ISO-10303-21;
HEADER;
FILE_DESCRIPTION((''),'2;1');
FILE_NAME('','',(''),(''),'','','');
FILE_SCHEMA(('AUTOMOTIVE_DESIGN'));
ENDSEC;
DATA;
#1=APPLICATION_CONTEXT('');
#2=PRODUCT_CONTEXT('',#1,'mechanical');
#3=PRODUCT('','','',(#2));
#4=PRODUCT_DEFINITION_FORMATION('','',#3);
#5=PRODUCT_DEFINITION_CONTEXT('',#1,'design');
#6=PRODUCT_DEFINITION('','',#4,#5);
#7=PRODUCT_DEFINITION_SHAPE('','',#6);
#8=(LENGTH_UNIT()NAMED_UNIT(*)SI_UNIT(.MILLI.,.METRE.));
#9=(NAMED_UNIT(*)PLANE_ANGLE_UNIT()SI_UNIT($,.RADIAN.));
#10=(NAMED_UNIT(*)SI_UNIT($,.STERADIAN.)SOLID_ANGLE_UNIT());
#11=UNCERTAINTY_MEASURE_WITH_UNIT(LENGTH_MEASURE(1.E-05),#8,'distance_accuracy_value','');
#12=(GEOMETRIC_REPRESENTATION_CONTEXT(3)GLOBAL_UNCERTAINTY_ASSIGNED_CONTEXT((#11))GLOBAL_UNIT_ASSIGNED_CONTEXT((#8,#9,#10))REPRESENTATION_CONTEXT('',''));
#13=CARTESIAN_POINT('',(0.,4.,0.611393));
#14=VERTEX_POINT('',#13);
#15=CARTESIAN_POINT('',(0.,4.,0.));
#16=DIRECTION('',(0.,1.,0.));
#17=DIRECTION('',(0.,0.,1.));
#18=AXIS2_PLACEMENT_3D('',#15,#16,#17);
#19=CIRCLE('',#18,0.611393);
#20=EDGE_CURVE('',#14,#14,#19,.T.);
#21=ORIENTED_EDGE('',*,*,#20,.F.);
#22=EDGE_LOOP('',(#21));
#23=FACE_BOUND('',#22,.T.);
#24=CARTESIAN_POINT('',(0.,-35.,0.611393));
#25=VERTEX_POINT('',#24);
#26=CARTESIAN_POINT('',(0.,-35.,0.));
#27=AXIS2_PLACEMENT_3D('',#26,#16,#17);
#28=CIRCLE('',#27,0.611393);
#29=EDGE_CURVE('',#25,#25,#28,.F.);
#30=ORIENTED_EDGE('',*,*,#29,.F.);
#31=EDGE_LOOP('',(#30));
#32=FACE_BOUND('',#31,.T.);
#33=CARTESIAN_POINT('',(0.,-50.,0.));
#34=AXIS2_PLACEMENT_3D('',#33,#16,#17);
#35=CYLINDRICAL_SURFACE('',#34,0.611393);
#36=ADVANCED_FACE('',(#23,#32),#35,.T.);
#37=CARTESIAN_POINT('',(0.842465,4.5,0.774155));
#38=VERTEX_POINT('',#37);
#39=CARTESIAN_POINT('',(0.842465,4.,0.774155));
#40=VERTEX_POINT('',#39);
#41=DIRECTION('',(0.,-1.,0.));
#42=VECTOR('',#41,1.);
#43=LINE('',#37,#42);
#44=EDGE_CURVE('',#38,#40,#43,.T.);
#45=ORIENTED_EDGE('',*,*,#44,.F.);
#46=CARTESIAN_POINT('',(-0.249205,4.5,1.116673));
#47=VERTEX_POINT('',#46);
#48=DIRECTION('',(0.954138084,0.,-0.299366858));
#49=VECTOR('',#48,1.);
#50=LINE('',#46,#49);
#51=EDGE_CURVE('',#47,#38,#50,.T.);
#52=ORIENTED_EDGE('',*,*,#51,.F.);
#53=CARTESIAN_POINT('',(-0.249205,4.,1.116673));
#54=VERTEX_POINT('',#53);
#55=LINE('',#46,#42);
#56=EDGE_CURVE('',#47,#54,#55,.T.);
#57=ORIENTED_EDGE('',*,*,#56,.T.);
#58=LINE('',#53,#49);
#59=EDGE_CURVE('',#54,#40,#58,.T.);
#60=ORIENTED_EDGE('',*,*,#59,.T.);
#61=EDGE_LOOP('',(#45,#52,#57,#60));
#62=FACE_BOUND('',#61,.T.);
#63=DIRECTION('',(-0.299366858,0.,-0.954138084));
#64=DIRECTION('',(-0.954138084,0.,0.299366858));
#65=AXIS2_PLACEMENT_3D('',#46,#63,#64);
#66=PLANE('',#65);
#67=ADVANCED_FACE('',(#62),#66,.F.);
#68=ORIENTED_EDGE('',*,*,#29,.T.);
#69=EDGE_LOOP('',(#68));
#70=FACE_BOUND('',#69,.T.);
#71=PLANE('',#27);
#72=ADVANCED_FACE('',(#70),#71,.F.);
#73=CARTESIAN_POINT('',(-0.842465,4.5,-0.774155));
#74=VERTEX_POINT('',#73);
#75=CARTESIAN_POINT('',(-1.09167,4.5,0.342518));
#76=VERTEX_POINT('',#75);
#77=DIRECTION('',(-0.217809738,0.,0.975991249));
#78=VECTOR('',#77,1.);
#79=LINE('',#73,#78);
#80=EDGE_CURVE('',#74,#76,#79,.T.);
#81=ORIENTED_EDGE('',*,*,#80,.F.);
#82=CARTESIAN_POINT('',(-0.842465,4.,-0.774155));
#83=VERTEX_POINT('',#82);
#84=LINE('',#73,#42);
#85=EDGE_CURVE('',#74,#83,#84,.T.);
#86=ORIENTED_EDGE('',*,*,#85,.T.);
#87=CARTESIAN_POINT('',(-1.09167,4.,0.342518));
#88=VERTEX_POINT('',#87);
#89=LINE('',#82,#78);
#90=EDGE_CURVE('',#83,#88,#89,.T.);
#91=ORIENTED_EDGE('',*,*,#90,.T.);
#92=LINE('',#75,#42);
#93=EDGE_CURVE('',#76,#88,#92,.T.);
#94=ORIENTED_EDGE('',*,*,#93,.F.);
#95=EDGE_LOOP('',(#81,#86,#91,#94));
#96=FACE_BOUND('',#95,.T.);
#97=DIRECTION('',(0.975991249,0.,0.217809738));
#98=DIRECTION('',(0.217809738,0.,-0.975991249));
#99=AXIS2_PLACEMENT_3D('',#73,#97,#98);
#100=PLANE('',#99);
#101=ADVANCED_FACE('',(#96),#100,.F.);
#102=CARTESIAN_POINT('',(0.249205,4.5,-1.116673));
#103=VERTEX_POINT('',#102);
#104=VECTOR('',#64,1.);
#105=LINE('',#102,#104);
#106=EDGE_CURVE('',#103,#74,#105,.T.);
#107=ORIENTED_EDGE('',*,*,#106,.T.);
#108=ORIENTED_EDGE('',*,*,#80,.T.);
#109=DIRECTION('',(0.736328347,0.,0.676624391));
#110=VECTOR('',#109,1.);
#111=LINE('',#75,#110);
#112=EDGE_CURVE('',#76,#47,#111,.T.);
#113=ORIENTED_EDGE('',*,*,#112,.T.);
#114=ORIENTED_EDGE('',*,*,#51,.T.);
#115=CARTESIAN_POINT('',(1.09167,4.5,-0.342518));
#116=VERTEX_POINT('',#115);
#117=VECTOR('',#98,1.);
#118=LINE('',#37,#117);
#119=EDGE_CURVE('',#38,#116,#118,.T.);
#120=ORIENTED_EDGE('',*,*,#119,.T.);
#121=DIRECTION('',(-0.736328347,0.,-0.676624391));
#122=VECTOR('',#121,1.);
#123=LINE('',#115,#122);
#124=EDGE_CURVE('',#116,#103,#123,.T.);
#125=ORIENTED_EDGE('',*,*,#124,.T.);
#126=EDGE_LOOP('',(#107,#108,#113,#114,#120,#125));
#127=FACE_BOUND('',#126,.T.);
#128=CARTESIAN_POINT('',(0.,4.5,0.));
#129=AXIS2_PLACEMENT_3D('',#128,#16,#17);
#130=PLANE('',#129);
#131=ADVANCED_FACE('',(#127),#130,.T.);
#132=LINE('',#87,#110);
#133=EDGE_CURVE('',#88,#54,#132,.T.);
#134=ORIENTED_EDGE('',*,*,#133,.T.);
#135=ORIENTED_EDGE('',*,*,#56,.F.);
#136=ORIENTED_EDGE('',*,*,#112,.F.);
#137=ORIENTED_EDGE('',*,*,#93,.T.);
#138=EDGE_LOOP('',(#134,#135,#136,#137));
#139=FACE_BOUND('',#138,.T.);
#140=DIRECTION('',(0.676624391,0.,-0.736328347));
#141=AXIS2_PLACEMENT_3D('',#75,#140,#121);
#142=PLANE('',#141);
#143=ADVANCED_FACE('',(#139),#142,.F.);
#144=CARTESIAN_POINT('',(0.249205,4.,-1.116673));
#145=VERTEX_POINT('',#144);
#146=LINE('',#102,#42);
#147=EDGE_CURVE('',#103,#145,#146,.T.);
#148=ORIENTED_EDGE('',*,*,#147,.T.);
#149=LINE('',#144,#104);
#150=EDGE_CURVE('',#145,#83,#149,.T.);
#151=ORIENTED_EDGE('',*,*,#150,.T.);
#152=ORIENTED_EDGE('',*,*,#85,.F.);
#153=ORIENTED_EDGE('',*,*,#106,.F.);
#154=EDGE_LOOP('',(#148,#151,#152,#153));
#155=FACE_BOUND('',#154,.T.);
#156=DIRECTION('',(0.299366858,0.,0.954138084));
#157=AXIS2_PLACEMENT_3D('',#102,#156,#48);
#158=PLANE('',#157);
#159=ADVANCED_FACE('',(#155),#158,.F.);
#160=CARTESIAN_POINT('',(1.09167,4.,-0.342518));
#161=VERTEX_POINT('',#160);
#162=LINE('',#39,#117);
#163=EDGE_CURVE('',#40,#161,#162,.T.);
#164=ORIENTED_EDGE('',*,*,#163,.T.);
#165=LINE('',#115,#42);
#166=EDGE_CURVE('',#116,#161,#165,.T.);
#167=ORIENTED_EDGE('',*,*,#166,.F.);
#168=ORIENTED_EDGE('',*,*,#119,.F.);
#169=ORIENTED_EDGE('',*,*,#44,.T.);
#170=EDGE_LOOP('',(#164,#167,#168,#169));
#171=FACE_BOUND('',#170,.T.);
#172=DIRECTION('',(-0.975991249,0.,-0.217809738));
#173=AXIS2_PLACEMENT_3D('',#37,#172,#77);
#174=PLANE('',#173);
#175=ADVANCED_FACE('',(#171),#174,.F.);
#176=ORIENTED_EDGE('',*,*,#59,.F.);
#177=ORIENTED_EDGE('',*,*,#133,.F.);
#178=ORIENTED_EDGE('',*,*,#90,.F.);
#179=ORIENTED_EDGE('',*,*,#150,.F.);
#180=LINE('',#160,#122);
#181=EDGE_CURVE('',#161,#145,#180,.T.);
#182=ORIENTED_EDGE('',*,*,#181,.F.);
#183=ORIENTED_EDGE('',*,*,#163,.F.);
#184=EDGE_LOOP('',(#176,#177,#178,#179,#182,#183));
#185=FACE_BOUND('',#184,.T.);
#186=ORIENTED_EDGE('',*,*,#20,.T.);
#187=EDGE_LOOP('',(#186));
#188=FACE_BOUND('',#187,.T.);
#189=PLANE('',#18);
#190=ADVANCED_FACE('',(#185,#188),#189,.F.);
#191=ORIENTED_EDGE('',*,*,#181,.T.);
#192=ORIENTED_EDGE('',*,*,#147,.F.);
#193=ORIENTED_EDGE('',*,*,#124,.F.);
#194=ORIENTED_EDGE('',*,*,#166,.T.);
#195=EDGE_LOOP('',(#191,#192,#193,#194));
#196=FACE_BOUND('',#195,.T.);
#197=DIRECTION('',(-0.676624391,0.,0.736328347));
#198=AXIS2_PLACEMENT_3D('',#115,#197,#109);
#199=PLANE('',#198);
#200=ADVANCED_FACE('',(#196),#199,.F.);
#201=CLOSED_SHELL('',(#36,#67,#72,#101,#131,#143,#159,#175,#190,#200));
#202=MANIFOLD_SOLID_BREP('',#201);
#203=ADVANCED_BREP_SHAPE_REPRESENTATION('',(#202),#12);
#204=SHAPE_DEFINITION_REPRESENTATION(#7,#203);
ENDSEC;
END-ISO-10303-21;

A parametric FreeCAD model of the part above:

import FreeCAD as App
import Part
import Sketcher
Q = App.Units.Quantity

doc = App.newDocument("Part")
params = doc.addObject("Spreadsheet::Sheet", "Params")
for row, (alias, value) in enumerate([
    ("pad1_length", "4 mm"),
    ("pad1_length2", "50 mm"),
    ("pad2_length", "0.5 mm"),
    ("pocket1_length", "15 mm"),
], start=1):
    params.set(f"A{row}", alias)
    params.set(f"B{row}", "=" + value)
    params.setAlias(f"B{row}", alias)

body = doc.addObject("PartDesign::Body", "Body")

sketch1 = body.newObject("Sketcher::SketchObject", "Sketch")
sketch1.AttachmentSupport = (doc.getObject("XZ_Plane"), [""])
sketch1.MapMode = "FlatFace"
sketch1.addGeometry(Part.Circle(App.Vector(0, 0, 0), App.Vector(0, 0, 1), 0.6), False)
sketch1.addConstraint([
    Sketcher.Constraint("Coincident", 0, 3, -1, 1),
    Sketcher.Constraint("Diameter", 0, Q("1.222786 mm")),
])
pad1 = body.newObject("PartDesign::Pad", "Pad")
pad1.Profile = sketch1
pad1.Type = "TwoLengths"
pad1.setExpression("Length", "Params.pad1_length")
pad1.setExpression("Length2", "Params.pad1_length2")
pad1.Reversed = True

sketch2 = body.newObject("Sketcher::SketchObject", "Sketch001")
sketch2.AttachmentSupport = (doc.getObject("XZ_Plane"), [""])
sketch2.MapMode = "FlatFace"
sketch2.AttachmentOffset = App.Placement(App.Vector(0, 0, -4), App.Rotation())
sketch2.addGeometry([
    Part.LineSegment(App.Vector(0.8, 0.8, 0), App.Vector(1.1, -0.3, 0)),
    Part.LineSegment(App.Vector(1.1, -0.3, 0), App.Vector(0.2, -1.1, 0)),
    Part.LineSegment(App.Vector(0.2, -1.1, 0), App.Vector(-0.8, -0.8, 0)),
    Part.LineSegment(App.Vector(-0.8, -0.8, 0), App.Vector(-1.1, 0.3, 0)),
    Part.LineSegment(App.Vector(-1.1, 0.3, 0), App.Vector(-0.2, 1.1, 0)),
    Part.LineSegment(App.Vector(-0.2, 1.1, 0), App.Vector(0.8, 0.8, 0)),
], False)
sketch2.addConstraint([
    Sketcher.Constraint("Coincident", 0, 2, 1, 1),
    Sketcher.Constraint("Coincident", 1, 2, 2, 1),
    Sketcher.Constraint("Coincident", 2, 2, 3, 1),
    Sketcher.Constraint("Coincident", 3, 2, 4, 1),
    Sketcher.Constraint("Coincident", 4, 2, 5, 1),
    Sketcher.Constraint("Coincident", 5, 2, 0, 1),
    Sketcher.Constraint("Symmetric", 0, 2, 3, 2, -1, 1),
    Sketcher.Constraint("Symmetric", 1, 2, 4, 2, -1, 1),
    Sketcher.Constraint("Symmetric", 2, 2, 5, 2, -1, 1),
    Sketcher.Constraint("Equal", 0, 1),
    Sketcher.Constraint("Equal", 1, 2),
    Sketcher.Constraint("DistanceX", -1, 1, 0, 2, Q("1.09167 mm")),
    Sketcher.Constraint("DistanceY", 0, 2, -1, 1, Q("0.342518 mm")),
    Sketcher.Constraint("DistanceX", 2, 2, 1, 2, Q("1.09167 mm")),
    Sketcher.Constraint("DistanceY", 1, 2, 2, 2, Q("0.342518 mm")),
])
pad2 = body.newObject("PartDesign::Pad", "Pad001")
pad2.Profile = sketch2
pad2.setExpression("Length", "Params.pad2_length")
pad2.Reversed = True

sketch3 = body.newObject("Sketcher::SketchObject", "Sketch002")
sketch3.AttachmentSupport = (doc.getObject("XZ_Plane"), [""])
sketch3.MapMode = "FlatFace"
sketch3.AttachmentOffset = App.Placement(App.Vector(0, 0, 50), App.Rotation())
sketch3.addGeometry([
    Part.LineSegment(App.Vector(2.9, -1.7, 0), App.Vector(2.9, 1.9, 0)),
    Part.LineSegment(App.Vector(2.9, 1.9, 0), App.Vector(-1.1, 1.9, 0)),
    Part.LineSegment(App.Vector(-1.1, 1.9, 0), App.Vector(-1.1, -1.7, 0)),
    Part.LineSegment(App.Vector(-1.1, -1.7, 0), App.Vector(2.9, -1.7, 0)),
], False)
sketch3.addConstraint([
    Sketcher.Constraint("Coincident", 0, 2, 1, 1),
    Sketcher.Constraint("Coincident", 1, 2, 2, 1),
    Sketcher.Constraint("Coincident", 2, 2, 3, 1),
    Sketcher.Constraint("Coincident", 3, 2, 0, 1),
    Sketcher.Constraint("Vertical", 0),
    Sketcher.Constraint("Horizontal", 1),
    Sketcher.Constraint("Vertical", 2),
    Sketcher.Constraint("Horizontal", 3),
    Sketcher.Constraint("DistanceX", 1, 2, 1, 1, Q("4.000837 mm")),
    Sketcher.Constraint("DistanceY", 0, 1, 0, 2, Q("3.633575 mm")),
    Sketcher.Constraint("DistanceX", -1, 1, 0, 2, Q("2.864232 mm")),
    Sketcher.Constraint("DistanceY", -1, 1, 0, 2, Q("1.911031 mm")),
])
pocket1 = body.newObject("PartDesign::Pocket", "Pocket")
pocket1.Profile = sketch3
pocket1.setExpression("Length", "Params.pocket1_length")

doc.recompute()
